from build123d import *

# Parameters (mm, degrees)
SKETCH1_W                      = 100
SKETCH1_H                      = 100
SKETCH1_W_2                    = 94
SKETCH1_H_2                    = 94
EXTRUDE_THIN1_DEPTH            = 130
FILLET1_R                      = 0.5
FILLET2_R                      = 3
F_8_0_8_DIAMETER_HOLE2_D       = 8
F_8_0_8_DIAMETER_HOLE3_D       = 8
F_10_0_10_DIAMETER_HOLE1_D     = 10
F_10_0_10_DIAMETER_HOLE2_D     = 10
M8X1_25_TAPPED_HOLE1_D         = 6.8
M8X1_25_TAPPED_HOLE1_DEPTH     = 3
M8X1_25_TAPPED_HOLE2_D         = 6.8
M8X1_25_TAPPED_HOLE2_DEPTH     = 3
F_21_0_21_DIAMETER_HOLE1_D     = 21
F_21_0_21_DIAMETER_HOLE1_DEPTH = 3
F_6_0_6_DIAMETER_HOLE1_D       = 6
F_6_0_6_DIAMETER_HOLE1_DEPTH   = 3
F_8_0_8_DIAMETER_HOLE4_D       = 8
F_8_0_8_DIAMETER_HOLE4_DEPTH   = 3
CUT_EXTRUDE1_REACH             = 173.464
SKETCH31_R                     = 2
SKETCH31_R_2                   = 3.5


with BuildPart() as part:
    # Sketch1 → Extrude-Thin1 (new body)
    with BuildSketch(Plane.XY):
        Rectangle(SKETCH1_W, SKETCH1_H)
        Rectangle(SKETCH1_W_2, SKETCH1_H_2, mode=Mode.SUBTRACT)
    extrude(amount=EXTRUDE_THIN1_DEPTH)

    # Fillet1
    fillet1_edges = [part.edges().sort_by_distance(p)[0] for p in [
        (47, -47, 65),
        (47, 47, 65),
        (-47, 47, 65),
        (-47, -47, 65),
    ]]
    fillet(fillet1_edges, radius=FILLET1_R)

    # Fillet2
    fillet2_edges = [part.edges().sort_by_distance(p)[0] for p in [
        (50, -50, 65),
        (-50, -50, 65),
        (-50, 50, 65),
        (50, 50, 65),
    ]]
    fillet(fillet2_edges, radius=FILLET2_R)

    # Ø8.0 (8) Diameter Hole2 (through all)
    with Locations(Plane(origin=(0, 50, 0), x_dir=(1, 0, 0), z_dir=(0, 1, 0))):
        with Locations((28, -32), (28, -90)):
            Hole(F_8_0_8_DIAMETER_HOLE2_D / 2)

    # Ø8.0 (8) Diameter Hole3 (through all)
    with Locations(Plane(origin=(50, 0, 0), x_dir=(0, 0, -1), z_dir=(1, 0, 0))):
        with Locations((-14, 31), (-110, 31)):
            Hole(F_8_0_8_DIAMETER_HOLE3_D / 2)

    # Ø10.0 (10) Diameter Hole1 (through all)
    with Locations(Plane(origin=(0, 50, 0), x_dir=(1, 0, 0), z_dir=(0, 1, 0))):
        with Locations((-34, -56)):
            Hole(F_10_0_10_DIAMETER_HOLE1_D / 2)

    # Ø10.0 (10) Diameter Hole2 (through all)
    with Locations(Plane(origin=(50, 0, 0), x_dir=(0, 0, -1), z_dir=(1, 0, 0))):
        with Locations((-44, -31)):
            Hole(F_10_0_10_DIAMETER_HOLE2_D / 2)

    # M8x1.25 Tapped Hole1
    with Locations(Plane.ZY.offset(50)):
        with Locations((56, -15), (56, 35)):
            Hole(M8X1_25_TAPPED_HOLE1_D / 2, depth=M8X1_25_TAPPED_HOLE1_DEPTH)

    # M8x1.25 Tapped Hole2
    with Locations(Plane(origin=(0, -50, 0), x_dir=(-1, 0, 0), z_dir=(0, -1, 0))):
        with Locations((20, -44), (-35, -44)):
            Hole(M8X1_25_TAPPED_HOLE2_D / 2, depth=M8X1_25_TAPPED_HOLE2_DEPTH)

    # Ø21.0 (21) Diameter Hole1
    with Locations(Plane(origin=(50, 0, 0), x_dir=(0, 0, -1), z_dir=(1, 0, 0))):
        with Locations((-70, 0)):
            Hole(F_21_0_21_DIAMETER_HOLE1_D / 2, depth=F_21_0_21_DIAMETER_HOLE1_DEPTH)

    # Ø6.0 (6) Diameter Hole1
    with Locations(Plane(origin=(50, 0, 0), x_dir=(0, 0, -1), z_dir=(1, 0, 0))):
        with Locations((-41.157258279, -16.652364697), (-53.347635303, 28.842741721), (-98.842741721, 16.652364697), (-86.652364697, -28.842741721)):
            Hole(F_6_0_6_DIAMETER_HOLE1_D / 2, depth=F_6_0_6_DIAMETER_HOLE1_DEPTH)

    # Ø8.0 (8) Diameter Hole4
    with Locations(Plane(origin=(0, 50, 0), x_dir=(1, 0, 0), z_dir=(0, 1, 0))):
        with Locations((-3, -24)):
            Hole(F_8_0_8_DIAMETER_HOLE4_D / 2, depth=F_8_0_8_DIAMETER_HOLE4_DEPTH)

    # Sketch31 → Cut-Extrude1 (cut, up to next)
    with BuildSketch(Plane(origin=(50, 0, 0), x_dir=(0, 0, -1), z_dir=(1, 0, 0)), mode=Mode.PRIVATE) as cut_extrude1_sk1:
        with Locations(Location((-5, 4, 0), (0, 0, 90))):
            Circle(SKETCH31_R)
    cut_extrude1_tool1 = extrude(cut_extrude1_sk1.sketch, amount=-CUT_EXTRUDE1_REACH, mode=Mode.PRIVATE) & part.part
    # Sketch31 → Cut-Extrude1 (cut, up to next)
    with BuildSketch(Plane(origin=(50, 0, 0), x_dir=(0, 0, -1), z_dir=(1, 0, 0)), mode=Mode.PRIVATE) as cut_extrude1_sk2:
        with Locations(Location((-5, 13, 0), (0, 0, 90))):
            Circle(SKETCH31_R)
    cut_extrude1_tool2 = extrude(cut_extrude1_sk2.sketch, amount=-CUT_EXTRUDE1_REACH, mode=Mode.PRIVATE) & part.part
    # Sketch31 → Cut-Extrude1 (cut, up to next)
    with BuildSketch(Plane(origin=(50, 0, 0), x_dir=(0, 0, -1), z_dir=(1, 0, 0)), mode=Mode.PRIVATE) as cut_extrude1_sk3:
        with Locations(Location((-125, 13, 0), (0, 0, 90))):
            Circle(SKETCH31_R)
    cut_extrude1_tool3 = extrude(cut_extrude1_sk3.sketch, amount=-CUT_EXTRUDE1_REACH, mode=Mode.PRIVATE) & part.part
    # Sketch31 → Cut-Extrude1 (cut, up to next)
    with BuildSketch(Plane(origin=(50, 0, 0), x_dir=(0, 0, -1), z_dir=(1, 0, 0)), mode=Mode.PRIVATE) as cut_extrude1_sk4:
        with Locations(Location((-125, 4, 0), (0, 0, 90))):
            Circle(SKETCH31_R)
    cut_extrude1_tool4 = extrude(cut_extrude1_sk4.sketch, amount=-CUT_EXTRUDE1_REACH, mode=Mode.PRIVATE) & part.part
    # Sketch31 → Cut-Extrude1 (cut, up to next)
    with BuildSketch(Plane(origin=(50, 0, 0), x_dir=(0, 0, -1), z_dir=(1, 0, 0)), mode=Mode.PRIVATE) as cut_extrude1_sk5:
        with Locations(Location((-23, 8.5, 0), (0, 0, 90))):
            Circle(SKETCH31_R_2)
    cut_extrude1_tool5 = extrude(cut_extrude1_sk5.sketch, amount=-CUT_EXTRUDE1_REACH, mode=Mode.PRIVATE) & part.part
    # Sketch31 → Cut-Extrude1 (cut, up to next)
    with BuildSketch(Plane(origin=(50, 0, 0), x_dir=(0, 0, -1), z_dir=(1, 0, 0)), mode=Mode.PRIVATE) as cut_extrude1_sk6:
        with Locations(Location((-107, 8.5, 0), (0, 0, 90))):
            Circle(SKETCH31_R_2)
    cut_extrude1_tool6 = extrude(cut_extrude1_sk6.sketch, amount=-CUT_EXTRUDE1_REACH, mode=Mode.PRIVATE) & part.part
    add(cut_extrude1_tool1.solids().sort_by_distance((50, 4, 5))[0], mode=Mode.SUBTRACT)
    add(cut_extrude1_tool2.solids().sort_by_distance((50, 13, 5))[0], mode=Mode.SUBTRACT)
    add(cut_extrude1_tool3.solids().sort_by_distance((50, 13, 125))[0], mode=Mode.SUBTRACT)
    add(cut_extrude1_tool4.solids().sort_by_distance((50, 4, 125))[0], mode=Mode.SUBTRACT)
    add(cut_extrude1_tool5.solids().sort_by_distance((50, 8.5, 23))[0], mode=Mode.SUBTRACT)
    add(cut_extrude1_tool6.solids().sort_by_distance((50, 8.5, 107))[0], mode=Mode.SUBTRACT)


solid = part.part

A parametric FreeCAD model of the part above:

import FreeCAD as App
import Part
import Sketcher

V = App.Vector


def edges_at(feature, points):
    """Names of the edges that pass closest to the given points."""
    edges = feature.Shape.Edges
    near = lambda p: min(range(len(edges)), key=lambda i: edges[i].distToShape(Part.Vertex(*p))[0])
    return sorted({f"Edge{near(p) + 1}" for p in points})

doc = App.newDocument("Part")
params = doc.addObject("Spreadsheet::Sheet", "Params")
for row, (alias, value) in enumerate([
    ("sketch1_width", "100 mm"),
    ("sketch1_width2", "94 mm"),
    ("pad1_length", "130 mm"),
    ("fillet_radius", "0.5 mm"),
    ("fillet2_radius", "3 mm"),
    ("sketch2_diameter", "8 mm"),
    ("hole_diameter", "8 mm"),
    ("sketch3_diameter", "8 mm"),
    ("hole2_diameter", "8 mm"),
    ("sketch4_diameter", "10 mm"),
    ("hole3_diameter", "10 mm"),
    ("sketch5_diameter", "10 mm"),
    ("hole4_diameter", "10 mm"),
    ("sketch6_diameter", "6.8 mm"),
    ("hole5_diameter", "6.8 mm"),
    ("hole5_depth", "3 mm"),
    ("sketch7_diameter", "6.8 mm"),
    ("hole6_diameter", "6.8 mm"),
    ("hole6_depth", "3 mm"),
    ("sketch8_diameter", "21 mm"),
    ("hole7_diameter", "21 mm"),
    ("hole7_depth", "3 mm"),
    ("sketch9_diameter", "6 mm"),
    ("hole8_diameter", "6 mm"),
    ("hole8_depth", "3 mm"),
    ("sketch10_diameter", "8 mm"),
    ("hole9_diameter", "8 mm"),
    ("hole9_depth", "3 mm"),
    ("sketch11_diameter", "4 mm"),
    ("sketch12_diameter", "4 mm"),
    ("sketch13_diameter", "4 mm"),
    ("sketch14_diameter", "4 mm"),
    ("sketch15_diameter", "7 mm"),
    ("sketch16_diameter", "7 mm"),
], start=1):
    params.set(f"A{row}", alias)
    params.set(f"B{row}", "=" + value)
    params.setAlias(f"B{row}", alias)

body = doc.addObject("PartDesign::Body", "Body")

# Sketch on XY plane
sketch1 = doc.addObject("Sketcher::SketchObject", "Sketch")
body.addObject(sketch1)
sketch1.AttachmentSupport = (doc.XY_Plane, [""])
sketch1.MapMode = "FlatFace"
sketch1.addGeometry(Part.LineSegment(V(-50, 50, 0), V(-50, -50, 0)), False)
sketch1.addGeometry(Part.LineSegment(V(-50, -50, 0), V(50, -50, 0)), False)
sketch1.addGeometry(Part.LineSegment(V(50, -50, 0), V(50, 50, 0)), False)
sketch1.addGeometry(Part.LineSegment(V(50, 50, 0), V(-50, 50, 0)), False)
sketch1.addGeometry(Part.LineSegment(V(47, -47, 0), V(-47, -47, 0)), False)
sketch1.addGeometry(Part.LineSegment(V(-47, -47, 0), V(-47, 47, 0)), False)
sketch1.addGeometry(Part.LineSegment(V(-47, 47, 0), V(47, 47, 0)), False)
sketch1.addGeometry(Part.LineSegment(V(47, 47, 0), V(47, -47, 0)), False)
sketch1.addConstraint(Sketcher.Constraint("Coincident", 0, 2, 1, 1))
sketch1.addConstraint(Sketcher.Constraint("Coincident", 1, 2, 2, 1))
sketch1.addConstraint(Sketcher.Constraint("Coincident", 2, 2, 3, 1))
sketch1.addConstraint(Sketcher.Constraint("Coincident", 3, 2, 0, 1))
sketch1.addConstraint(Sketcher.Constraint("Coincident", 4, 2, 5, 1))
sketch1.addConstraint(Sketcher.Constraint("Coincident", 5, 2, 6, 1))
sketch1.addConstraint(Sketcher.Constraint("Coincident", 6, 2, 7, 1))
sketch1.addConstraint(Sketcher.Constraint("Coincident", 7, 2, 4, 1))
sketch1.addConstraint(Sketcher.Constraint("Vertical", 0))
sketch1.addConstraint(Sketcher.Constraint("Horizontal", 1))
sketch1.addConstraint(Sketcher.Constraint("Vertical", 2))
sketch1.addConstraint(Sketcher.Constraint("Horizontal", 3))
sketch1.addConstraint(Sketcher.Constraint("Horizontal", 4))
sketch1.addConstraint(Sketcher.Constraint("Vertical", 5))
sketch1.addConstraint(Sketcher.Constraint("Horizontal", 6))
sketch1.addConstraint(Sketcher.Constraint("Vertical", 7))
sketch1.addConstraint(Sketcher.Constraint("Symmetric", 0, 2, 2, 2, -1, 1))
sketch1.addConstraint(Sketcher.Constraint("Symmetric", 4, 2, 6, 2, -1, 1))
sketch1.addConstraint(Sketcher.Constraint("Equal", 3, 0))
sketch1.addConstraint(Sketcher.Constraint("Equal", 6, 5))
sketch1.addConstraint(Sketcher.Constraint("DistanceX", 1, 1, 1, 2, 100.0))
sketch1.addConstraint(Sketcher.Constraint("DistanceX", 4, 2, 4, 1, 94.0))
sketch1.setExpression("Constraints[20]", "Params.sketch1_width")
sketch1.setExpression("Constraints[21]", "Params.sketch1_width2")
pad1 = doc.addObject("PartDesign::Pad", "Pad")
body.addObject(pad1)
pad1.Profile = sketch1
pad1.setExpression("Length", "Params.pad1_length")
doc.recompute()

fillet = doc.addObject("PartDesign::Fillet", "Fillet")
body.addObject(fillet)
fillet.Base = (pad1, edges_at(pad1, [
    (47, -47, 65),
    (47, 47, 65),
    (-47, 47, 65),
    (-47, -47, 65),
]))
fillet.setExpression("Radius", "Params.fillet_radius")
doc.recompute()

fillet2 = doc.addObject("PartDesign::Fillet", "Fillet001")
body.addObject(fillet2)
fillet2.Base = (fillet, edges_at(fillet, [
    (50, -50, 65),
    (-50, -50, 65),
    (-50, 50, 65),
    (50, 50, 65),
]))
fillet2.setExpression("Radius", "Params.fillet2_radius")

# Sketch on XZ plane
sketch2 = doc.addObject("Sketcher::SketchObject", "Sketch001")
body.addObject(sketch2)
sketch2.AttachmentSupport = (doc.XZ_Plane, [""])
sketch2.MapMode = "FlatFace"
sketch2.AttachmentOffset = App.Placement(V(0, 0, -50), App.Rotation())
sketch2.addGeometry(Part.Circle(V(28, 32, 0), V(0, 0, 1), 4), False)
sketch2.addGeometry(Part.Circle(V(28, 90, 0), V(0, 0, 1), 4), False)
sketch2.addConstraint(Sketcher.Constraint("Equal", 0, 1))
sketch2.addConstraint(Sketcher.Constraint("Vertical", 0, 3, 1, 3))
sketch2.addConstraint(Sketcher.Constraint("Diameter", 0, 8.0))
sketch2.addConstraint(Sketcher.Constraint("DistanceX", -1, 1, 0, 3, 28.0))
sketch2.addConstraint(Sketcher.Constraint("DistanceY", -1, 1, 0, 3, 32.0))
sketch2.addConstraint(Sketcher.Constraint("DistanceY", -1, 1, 1, 3, 90.0))
sketch2.setExpression("Constraints[2]", "Params.sketch2_diameter")
doc.recompute()
hole = doc.addObject("PartDesign::Hole", "Hole")
body.addObject(hole)
hole.Profile = sketch2
hole.ThreadType = "None"
hole.setExpression("Diameter", "Params.hole_diameter")
hole.DepthType = "ThroughAll"
hole.Reversed = True

# Sketch on YZ plane
sketch3 = doc.addObject("Sketcher::SketchObject", "Sketch002")
body.addObject(sketch3)
sketch3.AttachmentSupport = (doc.YZ_Plane, [""])
sketch3.MapMode = "FlatFace"
sketch3.AttachmentOffset = App.Placement(V(0, 0, 50), App.Rotation())
sketch3.addGeometry(Part.Circle(V(31, 14, 0), V(0, 0, 1), 4), False)
sketch3.addGeometry(Part.Circle(V(31, 110, 0), V(0, 0, 1), 4), False)
sketch3.addConstraint(Sketcher.Constraint("Equal", 0, 1))
sketch3.addConstraint(Sketcher.Constraint("Vertical", 0, 3, 1, 3))
sketch3.addConstraint(Sketcher.Constraint("Diameter", 0, 8.0))
sketch3.addConstraint(Sketcher.Constraint("DistanceX", -1, 1, 0, 3, 31.0))
sketch3.addConstraint(Sketcher.Constraint("DistanceY", -1, 1, 0, 3, 14.0))
sketch3.addConstraint(Sketcher.Constraint("DistanceY", -1, 1, 1, 3, 110.0))
sketch3.setExpression("Constraints[2]", "Params.sketch3_diameter")
doc.recompute()
hole2 = doc.addObject("PartDesign::Hole", "Hole001")
body.addObject(hole2)
hole2.Profile = sketch3
hole2.ThreadType = "None"
hole2.setExpression("Diameter", "Params.hole2_diameter")
hole2.DepthType = "ThroughAll"

# Sketch on XZ plane
sketch4 = doc.addObject("Sketcher::SketchObject", "Sketch003")
body.addObject(sketch4)
sketch4.AttachmentSupport = (doc.XZ_Plane, [""])
sketch4.MapMode = "FlatFace"
sketch4.AttachmentOffset = App.Placement(V(0, 0, -50), App.Rotation())
sketch4.addGeometry(Part.Circle(V(-34, 56, 0), V(0, 0, 1), 5), False)
sketch4.addConstraint(Sketcher.Constraint("Diameter", 0, 10.0))
sketch4.addConstraint(Sketcher.Constraint("DistanceX", 0, 3, -1, 1, 34.0))
sketch4.addConstraint(Sketcher.Constraint("DistanceY", -1, 1, 0, 3, 56.0))
sketch4.setExpression("Constraints[0]", "Params.sketch4_diameter")
doc.recompute()
hole3 = doc.addObject("PartDesign::Hole", "Hole002")
body.addObject(hole3)
hole3.Profile = sketch4
hole3.ThreadType = "None"
hole3.setExpression("Diameter", "Params.hole3_diameter")
hole3.DepthType = "ThroughAll"
hole3.Reversed = True

# Sketch on YZ plane
sketch5 = doc.addObject("Sketcher::SketchObject", "Sketch004")
body.addObject(sketch5)
sketch5.AttachmentSupport = (doc.YZ_Plane, [""])
sketch5.MapMode = "FlatFace"
sketch5.AttachmentOffset = App.Placement(V(0, 0, 50), App.Rotation())
sketch5.addGeometry(Part.Circle(V(-31, 44, 0), V(0, 0, 1), 5), False)
sketch5.addConstraint(Sketcher.Constraint("Diameter", 0, 10.0))
sketch5.addConstraint(Sketcher.Constraint("DistanceX", 0, 3, -1, 1, 31.0))
sketch5.addConstraint(Sketcher.Constraint("DistanceY", -1, 1, 0, 3, 44.0))
sketch5.setExpression("Constraints[0]", "Params.sketch5_diameter")
doc.recompute()
hole4 = doc.addObject("PartDesign::Hole", "Hole003")
body.addObject(hole4)
hole4.Profile = sketch5
hole4.ThreadType = "None"
hole4.setExpression("Diameter", "Params.hole4_diameter")
hole4.DepthType = "ThroughAll"

# Sketch on YZ plane
sketch6 = doc.addObject("Sketcher::SketchObject", "Sketch005")
body.addObject(sketch6)
sketch6.AttachmentSupport = (doc.YZ_Plane, [""])
sketch6.MapMode = "FlatFace"
sketch6.AttachmentOffset = App.Placement(V(0, 0, -50), App.Rotation())
sketch6.addGeometry(Part.Circle(V(-15, 56, 0), V(0, 0, 1), 3.4), False)
sketch6.addGeometry(Part.Circle(V(35, 56, 0), V(0, 0, 1), 3.4), False)
sketch6.addConstraint(Sketcher.Constraint("Equal", 0, 1))
sketch6.addConstraint(Sketcher.Constraint("Horizontal", 0, 3, 1, 3))
sketch6.addConstraint(Sketcher.Constraint("Diameter", 0, 6.8))
sketch6.addConstraint(Sketcher.Constraint("DistanceX", 0, 3, -1, 1, 15.0))
sketch6.addConstraint(Sketcher.Constraint("DistanceY", -1, 1, 0, 3, 56.0))
sketch6.addConstraint(Sketcher.Constraint("DistanceX", -1, 1, 1, 3, 35.0))
sketch6.setExpression("Constraints[2]", "Params.sketch6_diameter")
doc.recompute()
hole5 = doc.addObject("PartDesign::Hole", "Hole004")
body.addObject(hole5)
hole5.Profile = sketch6
hole5.ThreadType = "None"
hole5.setExpression("Diameter", "Params.hole5_diameter")
hole5.DepthType = "Dimension"
hole5.setExpression("Depth", "Params.hole5_depth")
hole5.DrillPoint = "Flat"
hole5.Reversed = True

# Sketch on XZ plane
sketch7 = doc.addObject("Sketcher::SketchObject", "Sketch006")
body.addObject(sketch7)
sketch7.AttachmentSupport = (doc.XZ_Plane, [""])
sketch7.MapMode = "FlatFace"
sketch7.AttachmentOffset = App.Placement(V(0, 0, 50), App.Rotation())
sketch7.addGeometry(Part.Circle(V(-20, 44, 0), V(0, 0, 1), 3.4), False)
sketch7.addGeometry(Part.Circle(V(35, 44, 0), V(0, 0, 1), 3.4), False)
sketch7.addConstraint(Sketcher.Constraint("Equal", 0, 1))
sketch7.addConstraint(Sketcher.Constraint("Horizontal", 0, 3, 1, 3))
sketch7.addConstraint(Sketcher.Constraint("Diameter", 0, 6.8))
sketch7.addConstraint(Sketcher.Constraint("DistanceX", 0, 3, -1, 1, 20.0))
sketch7.addConstraint(Sketcher.Constraint("DistanceY", -1, 1, 0, 3, 44.0))
sketch7.addConstraint(Sketcher.Constraint("DistanceX", -1, 1, 1, 3, 35.0))
sketch7.setExpression("Constraints[2]", "Params.sketch7_diameter")
doc.recompute()
hole6 = doc.addObject("PartDesign::Hole", "Hole005")
body.addObject(hole6)
hole6.Profile = sketch7
hole6.ThreadType = "None"
hole6.setExpression("Diameter", "Params.hole6_diameter")
hole6.DepthType = "Dimension"
hole6.setExpression("Depth", "Params.hole6_depth")
hole6.DrillPoint = "Flat"

# Sketch on YZ plane
sketch8 = doc.addObject("Sketcher::SketchObject", "Sketch007")
body.addObject(sketch8)
sketch8.AttachmentSupport = (doc.YZ_Plane, [""])
sketch8.MapMode = "FlatFace"
sketch8.AttachmentOffset = App.Placement(V(0, 0, 50), App.Rotation())
sketch8.addGeometry(Part.Circle(V(0, 70, 0), V(0, 0, 1), 10), False)
sketch8.addConstraint(Sketcher.Constraint("PointOnObject", 0, 3, -2))
sketch8.addConstraint(Sketcher.Constraint("Diameter", 0, 21.0))
sketch8.addConstraint(Sketcher.Constraint("DistanceY", -1, 1, 0, 3, 70.0))
sketch8.setExpression("Constraints[1]", "Params.sketch8_diameter")
doc.recompute()
hole7 = doc.addObject("PartDesign::Hole", "Hole006")
body.addObject(hole7)
hole7.Profile = sketch8
hole7.ThreadType = "None"
hole7.setExpression("Diameter", "Params.hole7_diameter")
hole7.DepthType = "Dimension"
hole7.setExpression("Depth", "Params.hole7_depth")
hole7.DrillPoint = "Flat"

# Sketch on YZ plane
sketch9 = doc.addObject("Sketcher::SketchObject", "Sketch008")
body.addObject(sketch9)
sketch9.AttachmentSupport = (doc.YZ_Plane, [""])
sketch9.MapMode = "FlatFace"
sketch9.AttachmentOffset = App.Placement(V(0, 0, 50), App.Rotation())
sketch9.addGeometry(Part.Circle(V(-16.7, 41.2, 0), V(0, 0, 1), 3), False)
sketch9.addGeometry(Part.Circle(V(28.8, 53.3, 0), V(0, 0, 1), 3), False)
sketch9.addGeometry(Part.Circle(V(16.7, 98.8, 0), V(0, 0, 1), 3), False)
sketch9.addGeometry(Part.Circle(V(-28.8, 86.7, 0), V(0, 0, 1), 3), False)
sketch9.addConstraint(Sketcher.Constraint("Equal", 0, 1))
sketch9.addConstraint(Sketcher.Constraint("Equal", 1, 2))
sketch9.addConstraint(Sketcher.Constraint("Equal", 2, 3))
sketch9.addConstraint(Sketcher.Constraint("Diameter", 0, 6.0))
sketch9.addConstraint(Sketcher.Constraint("DistanceY", -1, 1, 0, 3, 41.157258))
sketch9.addConstraint(Sketcher.Constraint("DistanceX", -1, 1, 1, 3, 28.842742))
sketch9.addConstraint(Sketcher.Constraint("DistanceY", -1, 1, 2, 3, 98.842742))
sketch9.addConstraint(Sketcher.Constraint("DistanceX", 3, 3, -1, 1, 28.842742))
sketch9.addConstraint(Sketcher.Constraint("DistanceX", 0, 3, 2, 3, 33.304729))
sketch9.addConstraint(Sketcher.Constraint("DistanceY", 1, 3, 3, 3, 33.304729))
sketch9.addConstraint(Sketcher.Constraint("DistanceX", 0, 3, -1, 1, 16.652365))
sketch9.addConstraint(Sketcher.Constraint("DistanceY", -1, 1, 1, 3, 53.347635))
sketch9.setExpression("Constraints[3]", "Params.sketch9_diameter")
doc.recompute()
hole8 = doc.addObject("PartDesign::Hole", "Hole007")
body.addObject(hole8)
hole8.Profile = sketch9
hole8.ThreadType = "None"
hole8.setExpression("Diameter", "Params.hole8_diameter")
hole8.DepthType = "Dimension"
hole8.setExpression("Depth", "Params.hole8_depth")
hole8.DrillPoint = "Flat"

# Sketch on XZ plane
sketch10 = doc.addObject("Sketcher::SketchObject", "Sketch009")
body.addObject(sketch10)
sketch10.AttachmentSupport = (doc.XZ_Plane, [""])
sketch10.MapMode = "FlatFace"
sketch10.AttachmentOffset = App.Placement(V(0, 0, -50), App.Rotation())
sketch10.addGeometry(Part.Circle(V(-3, 24, 0), V(0, 0, 1), 4), False)
sketch10.addConstraint(Sketcher.Constraint("Diameter", 0, 8.0))
sketch10.addConstraint(Sketcher.Constraint("DistanceX", 0, 3, -1, 1, 3.0))
sketch10.addConstraint(Sketcher.Constraint("DistanceY", -1, 1, 0, 3, 24.0))
sketch10.setExpression("Constraints[0]", "Params.sketch10_diameter")
doc.recompute()
hole9 = doc.addObject("PartDesign::Hole", "Hole008")
body.addObject(hole9)
hole9.Profile = sketch10
hole9.ThreadType = "None"
hole9.setExpression("Diameter", "Params.hole9_diameter")
hole9.DepthType = "Dimension"
hole9.setExpression("Depth", "Params.hole9_depth")
hole9.DrillPoint = "Flat"
hole9.Reversed = True

# Sketch on YZ plane
sketch11 = doc.addObject("Sketcher::SketchObject", "Sketch010")
body.addObject(sketch11)
sketch11.AttachmentSupport = (doc.YZ_Plane, [""])
sketch11.MapMode = "FlatFace"
sketch11.AttachmentOffset = App.Placement(V(0, 0, 50), App.Rotation())
sketch11.addGeometry(Part.Circle(V(4, 5, 0), V(0, 0, 1), 2), False)
sketch11.addConstraint(Sketcher.Constraint("Diameter", 0, 4.0))
sketch11.addConstraint(Sketcher.Constraint("DistanceX", -1, 1, 0, 3, 4.0))
sketch11.addConstraint(Sketcher.Constraint("DistanceY", -1, 1, 0, 3, 5.0))
sketch11.setExpression("Constraints[0]", "Params.sketch11_diameter")
pocket1 = doc.addObject("PartDesign::Pocket", "Pocket")
body.addObject(pocket1)
pocket1.Profile = sketch11
pocket1.Type = "UpToFirst"

# Sketch on YZ plane
sketch12 = doc.addObject("Sketcher::SketchObject", "Sketch011")
body.addObject(sketch12)
sketch12.AttachmentSupport = (doc.YZ_Plane, [""])
sketch12.MapMode = "FlatFace"
sketch12.AttachmentOffset = App.Placement(V(0, 0, 50), App.Rotation())
sketch12.addGeometry(Part.Circle(V(13, 5, 0), V(0, 0, 1), 2), False)
sketch12.addConstraint(Sketcher.Constraint("Diameter", 0, 4.0))
sketch12.addConstraint(Sketcher.Constraint("DistanceX", -1, 1, 0, 3, 13.0))
sketch12.addConstraint(Sketcher.Constraint("DistanceY", -1, 1, 0, 3, 5.0))
sketch12.setExpression("Constraints[0]", "Params.sketch12_diameter")
pocket2 = doc.addObject("PartDesign::Pocket", "Pocket001")
body.addObject(pocket2)
pocket2.Profile = sketch12
pocket2.Type = "UpToFirst"

# Sketch on YZ plane
sketch13 = doc.addObject("Sketcher::SketchObject", "Sketch012")
body.addObject(sketch13)
sketch13.AttachmentSupport = (doc.YZ_Plane, [""])
sketch13.MapMode = "FlatFace"
sketch13.AttachmentOffset = App.Placement(V(0, 0, 50), App.Rotation())
sketch13.addGeometry(Part.Circle(V(13, 125, 0), V(0, 0, 1), 2), False)
sketch13.addConstraint(Sketcher.Constraint("Diameter", 0, 4.0))
sketch13.addConstraint(Sketcher.Constraint("DistanceX", -1, 1, 0, 3, 13.0))
sketch13.addConstraint(Sketcher.Constraint("DistanceY", -1, 1, 0, 3, 125.0))
sketch13.setExpression("Constraints[0]", "Params.sketch13_diameter")
pocket3 = doc.addObject("PartDesign::Pocket", "Pocket002")
body.addObject(pocket3)
pocket3.Profile = sketch13
pocket3.Type = "UpToFirst"

# Sketch on YZ plane
sketch14 = doc.addObject("Sketcher::SketchObject", "Sketch013")
body.addObject(sketch14)
sketch14.AttachmentSupport = (doc.YZ_Plane, [""])
sketch14.MapMode = "FlatFace"
sketch14.AttachmentOffset = App.Placement(V(0, 0, 50), App.Rotation())
sketch14.addGeometry(Part.Circle(V(4, 125, 0), V(0, 0, 1), 2), False)
sketch14.addConstraint(Sketcher.Constraint("Diameter", 0, 4.0))
sketch14.addConstraint(Sketcher.Constraint("DistanceX", -1, 1, 0, 3, 4.0))
sketch14.addConstraint(Sketcher.Constraint("DistanceY", -1, 1, 0, 3, 125.0))
sketch14.setExpression("Constraints[0]", "Params.sketch14_diameter")
pocket4 = doc.addObject("PartDesign::Pocket", "Pocket003")
body.addObject(pocket4)
pocket4.Profile = sketch14
pocket4.Type = "UpToFirst"

# Sketch on YZ plane
sketch15 = doc.addObject("Sketcher::SketchObject", "Sketch014")
body.addObject(sketch15)
sketch15.AttachmentSupport = (doc.YZ_Plane, [""])
sketch15.MapMode = "FlatFace"
sketch15.AttachmentOffset = App.Placement(V(0, 0, 50), App.Rotation())
sketch15.addGeometry(Part.Circle(V(8.5, 23, 0), V(0, 0, 1), 3.5), False)
sketch15.addConstraint(Sketcher.Constraint("Diameter", 0, 7.0))
sketch15.addConstraint(Sketcher.Constraint("DistanceY", -1, 1, 0, 3, 23.0))
sketch15.addConstraint(Sketcher.Constraint("DistanceX", -1, 1, 0, 3, 8.5))
sketch15.setExpression("Constraints[0]", "Params.sketch15_diameter")
pocket5 = doc.addObject("PartDesign::Pocket", "Pocket004")
body.addObject(pocket5)
pocket5.Profile = sketch15
pocket5.Type = "UpToFirst"

# Sketch on YZ plane
sketch16 = doc.addObject("Sketcher::SketchObject", "Sketch015")
body.addObject(sketch16)
sketch16.AttachmentSupport = (doc.YZ_Plane, [""])
sketch16.MapMode = "FlatFace"
sketch16.AttachmentOffset = App.Placement(V(0, 0, 50), App.Rotation())
sketch16.addGeometry(Part.Circle(V(8.5, 107, 0), V(0, 0, 1), 3.5), False)
sketch16.addConstraint(Sketcher.Constraint("Diameter", 0, 7.0))
sketch16.addConstraint(Sketcher.Constraint("DistanceY", -1, 1, 0, 3, 107.0))
sketch16.addConstraint(Sketcher.Constraint("DistanceX", -1, 1, 0, 3, 8.5))
sketch16.setExpression("Constraints[0]", "Params.sketch16_diameter")
pocket6 = doc.addObject("PartDesign::Pocket", "Pocket005")
body.addObject(pocket6)
pocket6.Profile = sketch16
pocket6.Type = "UpToFirst"

doc.recompute()
